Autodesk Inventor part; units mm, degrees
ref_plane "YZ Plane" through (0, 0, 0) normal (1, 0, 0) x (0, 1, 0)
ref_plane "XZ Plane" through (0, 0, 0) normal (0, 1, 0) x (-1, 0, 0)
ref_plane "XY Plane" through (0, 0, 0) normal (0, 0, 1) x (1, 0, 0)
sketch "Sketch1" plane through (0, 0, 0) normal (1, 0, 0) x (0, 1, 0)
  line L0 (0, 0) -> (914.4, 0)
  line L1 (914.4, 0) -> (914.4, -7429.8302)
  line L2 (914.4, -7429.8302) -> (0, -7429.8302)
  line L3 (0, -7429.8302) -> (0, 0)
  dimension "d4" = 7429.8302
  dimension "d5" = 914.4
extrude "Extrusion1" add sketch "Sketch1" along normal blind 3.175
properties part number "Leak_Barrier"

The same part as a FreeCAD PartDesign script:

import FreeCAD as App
import Part
import Sketcher

V = App.Vector
Q = App.Units.Quantity


def add_polygon(sketch, points):
    """Adds a closed chain of lines whose ends are joined by coincident constraints."""
    first, n = sketch.GeometryCount, len(points)
    for a, b in zip(points, points[1:] + points[:1]):
        sketch.addGeometry(Part.LineSegment(App.Vector(*a, 0), App.Vector(*b, 0)), False)
    for i in range(n):
        sketch.addConstraint(Sketcher.Constraint("Coincident", first + i, 2, first + (i + 1) % n, 1))

doc = App.newDocument("Part")
params = doc.addObject("Spreadsheet::Sheet", "Params")
for row, (alias, value) in enumerate([
    ("sketch1_width", "36 in"),
    ("sketch1_height", "292.513 in"),
    ("pad1_length", "0.125 in"),
], start=1):
    params.set(f"A{row}", alias)
    params.set(f"B{row}", "=" + value)
    params.setAlias(f"B{row}", alias)

body = doc.addObject("PartDesign::Body", "Body")

# Sketch on YZ plane
sketch1 = doc.addObject("Sketcher::SketchObject", "Sketch")
body.addObject(sketch1)
sketch1.AttachmentSupport = (doc.YZ_Plane, [""])
sketch1.MapMode = "FlatFace"
add_polygon(sketch1, [(914.4, 0), (0, 0), (0, -7429.8302), (914.4, -7429.8302)])  # lines 0-3
sketch1.addConstraint(Sketcher.Constraint("Horizontal", 0))
sketch1.addConstraint(Sketcher.Constraint("Vertical", 1))
sketch1.addConstraint(Sketcher.Constraint("Horizontal", 2))
sketch1.addConstraint(Sketcher.Constraint("Vertical", 3))
sketch1.addConstraint(Sketcher.Constraint("Coincident", 0, 2, -1, 1))
sketch1.addConstraint(Sketcher.Constraint("DistanceX", 0, 2, 0, 1, Q("36 in")))
sketch1.addConstraint(Sketcher.Constraint("DistanceY", 1, 2, 1, 1, Q("292.513 in")))
sketch1.setExpression("Constraints[9]", "Params.sketch1_width")
sketch1.setExpression("Constraints[10]", "Params.sketch1_height")
pad1 = doc.addObject("PartDesign::Pad", "Pad")
body.addObject(pad1)
pad1.Profile = sketch1
pad1.setExpression("Length", "Params.pad1_length")

doc.recompute()
